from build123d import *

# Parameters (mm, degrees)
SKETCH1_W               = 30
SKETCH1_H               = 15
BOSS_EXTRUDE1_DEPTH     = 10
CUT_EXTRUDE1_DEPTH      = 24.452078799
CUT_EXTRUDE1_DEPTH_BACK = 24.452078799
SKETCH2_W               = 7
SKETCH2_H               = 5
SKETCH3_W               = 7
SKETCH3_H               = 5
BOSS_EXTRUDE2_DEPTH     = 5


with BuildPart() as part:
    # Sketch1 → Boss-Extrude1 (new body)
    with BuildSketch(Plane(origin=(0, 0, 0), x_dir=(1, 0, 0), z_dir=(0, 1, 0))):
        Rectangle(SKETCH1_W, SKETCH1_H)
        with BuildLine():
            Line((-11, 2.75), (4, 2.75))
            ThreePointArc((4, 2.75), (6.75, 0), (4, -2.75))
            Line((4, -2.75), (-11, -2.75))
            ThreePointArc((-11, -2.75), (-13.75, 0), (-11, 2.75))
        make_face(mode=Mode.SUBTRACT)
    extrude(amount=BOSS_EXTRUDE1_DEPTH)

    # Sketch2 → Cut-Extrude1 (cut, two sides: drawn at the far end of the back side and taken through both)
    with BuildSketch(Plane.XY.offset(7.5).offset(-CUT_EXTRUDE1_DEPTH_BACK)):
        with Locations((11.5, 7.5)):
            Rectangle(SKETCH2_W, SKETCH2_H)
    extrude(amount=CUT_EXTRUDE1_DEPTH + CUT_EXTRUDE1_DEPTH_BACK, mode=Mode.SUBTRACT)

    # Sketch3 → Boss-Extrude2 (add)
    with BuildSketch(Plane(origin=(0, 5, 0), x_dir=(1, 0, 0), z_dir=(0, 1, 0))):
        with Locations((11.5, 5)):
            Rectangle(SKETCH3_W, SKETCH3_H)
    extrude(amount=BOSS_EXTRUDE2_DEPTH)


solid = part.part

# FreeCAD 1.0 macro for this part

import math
import FreeCAD as App
import Part
import Sketcher
Q = App.Units.Quantity


def add_polygon(sketch, points):
    """Adds a closed chain of lines whose ends are joined by coincident constraints."""
    first, n = sketch.GeometryCount, len(points)
    for a, b in zip(points, points[1:] + points[:1]):
        sketch.addGeometry(Part.LineSegment(App.Vector(*a, 0), App.Vector(*b, 0)), False)
    for i in range(n):
        sketch.addConstraint(Sketcher.Constraint("Coincident", first + i, 2, first + (i + 1) % n, 1))

doc = App.newDocument("Part")
params = doc.addObject("Spreadsheet::Sheet", "Params")
for row, (alias, value) in enumerate([
    ("sketch1_width", "30 mm"),
    ("sketch1_width2", "15 mm"),
    ("sketch1_radius", "2.75 mm"),
    ("pad1_length", "10 mm"),
    ("sketch2_width", "7 mm"),
    ("sketch2_height", "5 mm"),
    ("sketch3_width", "7 mm"),
    ("sketch3_height", "5 mm"),
    ("pad2_length", "5 mm"),
], start=1):
    params.set(f"A{row}", alias)
    params.set(f"B{row}", "=" + value)
    params.setAlias(f"B{row}", alias)

body = doc.addObject("PartDesign::Body", "Body")

# Sketch on XZ plane
sketch1 = body.newObject("Sketcher::SketchObject", "Sketch")
sketch1.AttachmentSupport = (doc.getObject("XZ_Plane"), [""])
sketch1.MapMode = "FlatFace"
add_polygon(sketch1, [(-15, -7.5), (-15, 7.5), (15, 7.5), (15, -7.5)])  # lines 0-3
sketch1.addGeometry(Part.ArcOfCircle(Part.Circle(App.Vector(-11, 0, 0), App.Vector(0, 0, 1), 2.8), math.radians(90), math.radians(270)), False)  # 4
sketch1.addGeometry(Part.LineSegment(App.Vector(-11, -2.8, 0), App.Vector(4, -2.8, 0)), False)  # 5
sketch1.addGeometry(Part.ArcOfCircle(Part.Circle(App.Vector(4, 0, 0), App.Vector(0, 0, 1), 2.8), math.radians(-90), math.radians(90)), False)  # 6
sketch1.addGeometry(Part.LineSegment(App.Vector(4, 2.8, 0), App.Vector(-11, 2.8, 0)), False)  # 7
sketch1.addConstraint([
    Sketcher.Constraint("Tangent", 4, 2, 5, 1),
    Sketcher.Constraint("Tangent", 5, 2, 6, 1),
    Sketcher.Constraint("Tangent", 6, 2, 7, 1),
    Sketcher.Constraint("Tangent", 7, 2, 4, 1),
    Sketcher.Constraint("Vertical", 0),
    Sketcher.Constraint("Horizontal", 1),
    Sketcher.Constraint("Vertical", 2),
    Sketcher.Constraint("Horizontal", 3),
    Sketcher.Constraint("Horizontal", 5),
    Sketcher.Constraint("Horizontal", 7),
    Sketcher.Constraint("Symmetric", 0, 2, 2, 2, -1, 1),
    Sketcher.Constraint("PointOnObject", 4, 3, -1),
    Sketcher.Constraint("Equal", 7, 0),
    Sketcher.Constraint("DistanceX", 1, 1, 1, 2, Q("30 mm")),
    Sketcher.Constraint("DistanceX", 5, 1, 5, 2, Q("15 mm")),
    Sketcher.Constraint("Radius", 4, Q("2.75 mm")),
    Sketcher.Constraint("DistanceX", 4, 3, -1, 1, Q("11 mm")),
])
sketch1.setExpression("Constraints[17]", "Params.sketch1_width")
sketch1.setExpression("Constraints[18]", "Params.sketch1_width2")
sketch1.setExpression("Constraints[19]", "Params.sketch1_radius")
pad1 = body.newObject("PartDesign::Pad", "Pad")
pad1.Profile = sketch1
pad1.setExpression("Length", "Params.pad1_length")
pad1.Reversed = True

# Sketch on XY plane
sketch2 = body.newObject("Sketcher::SketchObject", "Sketch001")
sketch2.AttachmentSupport = (doc.getObject("XY_Plane"), [""])
sketch2.MapMode = "FlatFace"
sketch2.AttachmentOffset = App.Placement(App.Vector(0, 0, 7.5), App.Rotation())
add_polygon(sketch2, [(8, 10), (8, 5), (15, 5), (15, 10)])  # lines 0-3
sketch2.addConstraint([
    Sketcher.Constraint("Vertical", 0),
    Sketcher.Constraint("Horizontal", 1),
    Sketcher.Constraint("Vertical", 2),
    Sketcher.Constraint("Horizontal", 3),
    Sketcher.Constraint("DistanceX", 1, 1, 1, 2, Q("7 mm")),
    Sketcher.Constraint("DistanceY", 0, 2, 0, 1, Q("5 mm")),
    Sketcher.Constraint("DistanceX", -1, 1, 0, 2, Q("8 mm")),
    Sketcher.Constraint("DistanceY", -1, 1, 0, 2, Q("5 mm")),
])
sketch2.setExpression("Constraints[8]", "Params.sketch2_width")
sketch2.setExpression("Constraints[9]", "Params.sketch2_height")
pocket1 = body.newObject("PartDesign::Pocket", "Pocket")
pocket1.Profile = sketch2
pocket1.Type = "ThroughAll"
pocket1.Midplane = True

# Sketch on XZ plane
sketch3 = body.newObject("Sketcher::SketchObject", "Sketch002")
sketch3.AttachmentSupport = (doc.getObject("XZ_Plane"), [""])
sketch3.MapMode = "FlatFace"
sketch3.AttachmentOffset = App.Placement(App.Vector(0, 0, -5), App.Rotation())
add_polygon(sketch3, [(8, -8), (8, -2), (15, -2), (15, -8)])  # lines 0-3
sketch3.addConstraint([
    Sketcher.Constraint("Vertical", 0),
    Sketcher.Constraint("Horizontal", 1),
    Sketcher.Constraint("Vertical", 2),
    Sketcher.Constraint("Horizontal", 3),
    Sketcher.Constraint("DistanceX", 1, 1, 1, 2, Q("7 mm")),
    Sketcher.Constraint("DistanceY", 0, 1, 0, 2, Q("5 mm")),
    Sketcher.Constraint("DistanceX", -1, 1, 0, 2, Q("8 mm")),
    Sketcher.Constraint("DistanceY", 0, 2, -1, 1, Q("2.5 mm")),
])
sketch3.setExpression("Constraints[8]", "Params.sketch3_width")
sketch3.setExpression("Constraints[9]", "Params.sketch3_height")
pad2 = body.newObject("PartDesign::Pad", "Pad001")
pad2.Profile = sketch3
pad2.setExpression("Length", "Params.pad2_length")
pad2.Reversed = True

doc.recompute()
